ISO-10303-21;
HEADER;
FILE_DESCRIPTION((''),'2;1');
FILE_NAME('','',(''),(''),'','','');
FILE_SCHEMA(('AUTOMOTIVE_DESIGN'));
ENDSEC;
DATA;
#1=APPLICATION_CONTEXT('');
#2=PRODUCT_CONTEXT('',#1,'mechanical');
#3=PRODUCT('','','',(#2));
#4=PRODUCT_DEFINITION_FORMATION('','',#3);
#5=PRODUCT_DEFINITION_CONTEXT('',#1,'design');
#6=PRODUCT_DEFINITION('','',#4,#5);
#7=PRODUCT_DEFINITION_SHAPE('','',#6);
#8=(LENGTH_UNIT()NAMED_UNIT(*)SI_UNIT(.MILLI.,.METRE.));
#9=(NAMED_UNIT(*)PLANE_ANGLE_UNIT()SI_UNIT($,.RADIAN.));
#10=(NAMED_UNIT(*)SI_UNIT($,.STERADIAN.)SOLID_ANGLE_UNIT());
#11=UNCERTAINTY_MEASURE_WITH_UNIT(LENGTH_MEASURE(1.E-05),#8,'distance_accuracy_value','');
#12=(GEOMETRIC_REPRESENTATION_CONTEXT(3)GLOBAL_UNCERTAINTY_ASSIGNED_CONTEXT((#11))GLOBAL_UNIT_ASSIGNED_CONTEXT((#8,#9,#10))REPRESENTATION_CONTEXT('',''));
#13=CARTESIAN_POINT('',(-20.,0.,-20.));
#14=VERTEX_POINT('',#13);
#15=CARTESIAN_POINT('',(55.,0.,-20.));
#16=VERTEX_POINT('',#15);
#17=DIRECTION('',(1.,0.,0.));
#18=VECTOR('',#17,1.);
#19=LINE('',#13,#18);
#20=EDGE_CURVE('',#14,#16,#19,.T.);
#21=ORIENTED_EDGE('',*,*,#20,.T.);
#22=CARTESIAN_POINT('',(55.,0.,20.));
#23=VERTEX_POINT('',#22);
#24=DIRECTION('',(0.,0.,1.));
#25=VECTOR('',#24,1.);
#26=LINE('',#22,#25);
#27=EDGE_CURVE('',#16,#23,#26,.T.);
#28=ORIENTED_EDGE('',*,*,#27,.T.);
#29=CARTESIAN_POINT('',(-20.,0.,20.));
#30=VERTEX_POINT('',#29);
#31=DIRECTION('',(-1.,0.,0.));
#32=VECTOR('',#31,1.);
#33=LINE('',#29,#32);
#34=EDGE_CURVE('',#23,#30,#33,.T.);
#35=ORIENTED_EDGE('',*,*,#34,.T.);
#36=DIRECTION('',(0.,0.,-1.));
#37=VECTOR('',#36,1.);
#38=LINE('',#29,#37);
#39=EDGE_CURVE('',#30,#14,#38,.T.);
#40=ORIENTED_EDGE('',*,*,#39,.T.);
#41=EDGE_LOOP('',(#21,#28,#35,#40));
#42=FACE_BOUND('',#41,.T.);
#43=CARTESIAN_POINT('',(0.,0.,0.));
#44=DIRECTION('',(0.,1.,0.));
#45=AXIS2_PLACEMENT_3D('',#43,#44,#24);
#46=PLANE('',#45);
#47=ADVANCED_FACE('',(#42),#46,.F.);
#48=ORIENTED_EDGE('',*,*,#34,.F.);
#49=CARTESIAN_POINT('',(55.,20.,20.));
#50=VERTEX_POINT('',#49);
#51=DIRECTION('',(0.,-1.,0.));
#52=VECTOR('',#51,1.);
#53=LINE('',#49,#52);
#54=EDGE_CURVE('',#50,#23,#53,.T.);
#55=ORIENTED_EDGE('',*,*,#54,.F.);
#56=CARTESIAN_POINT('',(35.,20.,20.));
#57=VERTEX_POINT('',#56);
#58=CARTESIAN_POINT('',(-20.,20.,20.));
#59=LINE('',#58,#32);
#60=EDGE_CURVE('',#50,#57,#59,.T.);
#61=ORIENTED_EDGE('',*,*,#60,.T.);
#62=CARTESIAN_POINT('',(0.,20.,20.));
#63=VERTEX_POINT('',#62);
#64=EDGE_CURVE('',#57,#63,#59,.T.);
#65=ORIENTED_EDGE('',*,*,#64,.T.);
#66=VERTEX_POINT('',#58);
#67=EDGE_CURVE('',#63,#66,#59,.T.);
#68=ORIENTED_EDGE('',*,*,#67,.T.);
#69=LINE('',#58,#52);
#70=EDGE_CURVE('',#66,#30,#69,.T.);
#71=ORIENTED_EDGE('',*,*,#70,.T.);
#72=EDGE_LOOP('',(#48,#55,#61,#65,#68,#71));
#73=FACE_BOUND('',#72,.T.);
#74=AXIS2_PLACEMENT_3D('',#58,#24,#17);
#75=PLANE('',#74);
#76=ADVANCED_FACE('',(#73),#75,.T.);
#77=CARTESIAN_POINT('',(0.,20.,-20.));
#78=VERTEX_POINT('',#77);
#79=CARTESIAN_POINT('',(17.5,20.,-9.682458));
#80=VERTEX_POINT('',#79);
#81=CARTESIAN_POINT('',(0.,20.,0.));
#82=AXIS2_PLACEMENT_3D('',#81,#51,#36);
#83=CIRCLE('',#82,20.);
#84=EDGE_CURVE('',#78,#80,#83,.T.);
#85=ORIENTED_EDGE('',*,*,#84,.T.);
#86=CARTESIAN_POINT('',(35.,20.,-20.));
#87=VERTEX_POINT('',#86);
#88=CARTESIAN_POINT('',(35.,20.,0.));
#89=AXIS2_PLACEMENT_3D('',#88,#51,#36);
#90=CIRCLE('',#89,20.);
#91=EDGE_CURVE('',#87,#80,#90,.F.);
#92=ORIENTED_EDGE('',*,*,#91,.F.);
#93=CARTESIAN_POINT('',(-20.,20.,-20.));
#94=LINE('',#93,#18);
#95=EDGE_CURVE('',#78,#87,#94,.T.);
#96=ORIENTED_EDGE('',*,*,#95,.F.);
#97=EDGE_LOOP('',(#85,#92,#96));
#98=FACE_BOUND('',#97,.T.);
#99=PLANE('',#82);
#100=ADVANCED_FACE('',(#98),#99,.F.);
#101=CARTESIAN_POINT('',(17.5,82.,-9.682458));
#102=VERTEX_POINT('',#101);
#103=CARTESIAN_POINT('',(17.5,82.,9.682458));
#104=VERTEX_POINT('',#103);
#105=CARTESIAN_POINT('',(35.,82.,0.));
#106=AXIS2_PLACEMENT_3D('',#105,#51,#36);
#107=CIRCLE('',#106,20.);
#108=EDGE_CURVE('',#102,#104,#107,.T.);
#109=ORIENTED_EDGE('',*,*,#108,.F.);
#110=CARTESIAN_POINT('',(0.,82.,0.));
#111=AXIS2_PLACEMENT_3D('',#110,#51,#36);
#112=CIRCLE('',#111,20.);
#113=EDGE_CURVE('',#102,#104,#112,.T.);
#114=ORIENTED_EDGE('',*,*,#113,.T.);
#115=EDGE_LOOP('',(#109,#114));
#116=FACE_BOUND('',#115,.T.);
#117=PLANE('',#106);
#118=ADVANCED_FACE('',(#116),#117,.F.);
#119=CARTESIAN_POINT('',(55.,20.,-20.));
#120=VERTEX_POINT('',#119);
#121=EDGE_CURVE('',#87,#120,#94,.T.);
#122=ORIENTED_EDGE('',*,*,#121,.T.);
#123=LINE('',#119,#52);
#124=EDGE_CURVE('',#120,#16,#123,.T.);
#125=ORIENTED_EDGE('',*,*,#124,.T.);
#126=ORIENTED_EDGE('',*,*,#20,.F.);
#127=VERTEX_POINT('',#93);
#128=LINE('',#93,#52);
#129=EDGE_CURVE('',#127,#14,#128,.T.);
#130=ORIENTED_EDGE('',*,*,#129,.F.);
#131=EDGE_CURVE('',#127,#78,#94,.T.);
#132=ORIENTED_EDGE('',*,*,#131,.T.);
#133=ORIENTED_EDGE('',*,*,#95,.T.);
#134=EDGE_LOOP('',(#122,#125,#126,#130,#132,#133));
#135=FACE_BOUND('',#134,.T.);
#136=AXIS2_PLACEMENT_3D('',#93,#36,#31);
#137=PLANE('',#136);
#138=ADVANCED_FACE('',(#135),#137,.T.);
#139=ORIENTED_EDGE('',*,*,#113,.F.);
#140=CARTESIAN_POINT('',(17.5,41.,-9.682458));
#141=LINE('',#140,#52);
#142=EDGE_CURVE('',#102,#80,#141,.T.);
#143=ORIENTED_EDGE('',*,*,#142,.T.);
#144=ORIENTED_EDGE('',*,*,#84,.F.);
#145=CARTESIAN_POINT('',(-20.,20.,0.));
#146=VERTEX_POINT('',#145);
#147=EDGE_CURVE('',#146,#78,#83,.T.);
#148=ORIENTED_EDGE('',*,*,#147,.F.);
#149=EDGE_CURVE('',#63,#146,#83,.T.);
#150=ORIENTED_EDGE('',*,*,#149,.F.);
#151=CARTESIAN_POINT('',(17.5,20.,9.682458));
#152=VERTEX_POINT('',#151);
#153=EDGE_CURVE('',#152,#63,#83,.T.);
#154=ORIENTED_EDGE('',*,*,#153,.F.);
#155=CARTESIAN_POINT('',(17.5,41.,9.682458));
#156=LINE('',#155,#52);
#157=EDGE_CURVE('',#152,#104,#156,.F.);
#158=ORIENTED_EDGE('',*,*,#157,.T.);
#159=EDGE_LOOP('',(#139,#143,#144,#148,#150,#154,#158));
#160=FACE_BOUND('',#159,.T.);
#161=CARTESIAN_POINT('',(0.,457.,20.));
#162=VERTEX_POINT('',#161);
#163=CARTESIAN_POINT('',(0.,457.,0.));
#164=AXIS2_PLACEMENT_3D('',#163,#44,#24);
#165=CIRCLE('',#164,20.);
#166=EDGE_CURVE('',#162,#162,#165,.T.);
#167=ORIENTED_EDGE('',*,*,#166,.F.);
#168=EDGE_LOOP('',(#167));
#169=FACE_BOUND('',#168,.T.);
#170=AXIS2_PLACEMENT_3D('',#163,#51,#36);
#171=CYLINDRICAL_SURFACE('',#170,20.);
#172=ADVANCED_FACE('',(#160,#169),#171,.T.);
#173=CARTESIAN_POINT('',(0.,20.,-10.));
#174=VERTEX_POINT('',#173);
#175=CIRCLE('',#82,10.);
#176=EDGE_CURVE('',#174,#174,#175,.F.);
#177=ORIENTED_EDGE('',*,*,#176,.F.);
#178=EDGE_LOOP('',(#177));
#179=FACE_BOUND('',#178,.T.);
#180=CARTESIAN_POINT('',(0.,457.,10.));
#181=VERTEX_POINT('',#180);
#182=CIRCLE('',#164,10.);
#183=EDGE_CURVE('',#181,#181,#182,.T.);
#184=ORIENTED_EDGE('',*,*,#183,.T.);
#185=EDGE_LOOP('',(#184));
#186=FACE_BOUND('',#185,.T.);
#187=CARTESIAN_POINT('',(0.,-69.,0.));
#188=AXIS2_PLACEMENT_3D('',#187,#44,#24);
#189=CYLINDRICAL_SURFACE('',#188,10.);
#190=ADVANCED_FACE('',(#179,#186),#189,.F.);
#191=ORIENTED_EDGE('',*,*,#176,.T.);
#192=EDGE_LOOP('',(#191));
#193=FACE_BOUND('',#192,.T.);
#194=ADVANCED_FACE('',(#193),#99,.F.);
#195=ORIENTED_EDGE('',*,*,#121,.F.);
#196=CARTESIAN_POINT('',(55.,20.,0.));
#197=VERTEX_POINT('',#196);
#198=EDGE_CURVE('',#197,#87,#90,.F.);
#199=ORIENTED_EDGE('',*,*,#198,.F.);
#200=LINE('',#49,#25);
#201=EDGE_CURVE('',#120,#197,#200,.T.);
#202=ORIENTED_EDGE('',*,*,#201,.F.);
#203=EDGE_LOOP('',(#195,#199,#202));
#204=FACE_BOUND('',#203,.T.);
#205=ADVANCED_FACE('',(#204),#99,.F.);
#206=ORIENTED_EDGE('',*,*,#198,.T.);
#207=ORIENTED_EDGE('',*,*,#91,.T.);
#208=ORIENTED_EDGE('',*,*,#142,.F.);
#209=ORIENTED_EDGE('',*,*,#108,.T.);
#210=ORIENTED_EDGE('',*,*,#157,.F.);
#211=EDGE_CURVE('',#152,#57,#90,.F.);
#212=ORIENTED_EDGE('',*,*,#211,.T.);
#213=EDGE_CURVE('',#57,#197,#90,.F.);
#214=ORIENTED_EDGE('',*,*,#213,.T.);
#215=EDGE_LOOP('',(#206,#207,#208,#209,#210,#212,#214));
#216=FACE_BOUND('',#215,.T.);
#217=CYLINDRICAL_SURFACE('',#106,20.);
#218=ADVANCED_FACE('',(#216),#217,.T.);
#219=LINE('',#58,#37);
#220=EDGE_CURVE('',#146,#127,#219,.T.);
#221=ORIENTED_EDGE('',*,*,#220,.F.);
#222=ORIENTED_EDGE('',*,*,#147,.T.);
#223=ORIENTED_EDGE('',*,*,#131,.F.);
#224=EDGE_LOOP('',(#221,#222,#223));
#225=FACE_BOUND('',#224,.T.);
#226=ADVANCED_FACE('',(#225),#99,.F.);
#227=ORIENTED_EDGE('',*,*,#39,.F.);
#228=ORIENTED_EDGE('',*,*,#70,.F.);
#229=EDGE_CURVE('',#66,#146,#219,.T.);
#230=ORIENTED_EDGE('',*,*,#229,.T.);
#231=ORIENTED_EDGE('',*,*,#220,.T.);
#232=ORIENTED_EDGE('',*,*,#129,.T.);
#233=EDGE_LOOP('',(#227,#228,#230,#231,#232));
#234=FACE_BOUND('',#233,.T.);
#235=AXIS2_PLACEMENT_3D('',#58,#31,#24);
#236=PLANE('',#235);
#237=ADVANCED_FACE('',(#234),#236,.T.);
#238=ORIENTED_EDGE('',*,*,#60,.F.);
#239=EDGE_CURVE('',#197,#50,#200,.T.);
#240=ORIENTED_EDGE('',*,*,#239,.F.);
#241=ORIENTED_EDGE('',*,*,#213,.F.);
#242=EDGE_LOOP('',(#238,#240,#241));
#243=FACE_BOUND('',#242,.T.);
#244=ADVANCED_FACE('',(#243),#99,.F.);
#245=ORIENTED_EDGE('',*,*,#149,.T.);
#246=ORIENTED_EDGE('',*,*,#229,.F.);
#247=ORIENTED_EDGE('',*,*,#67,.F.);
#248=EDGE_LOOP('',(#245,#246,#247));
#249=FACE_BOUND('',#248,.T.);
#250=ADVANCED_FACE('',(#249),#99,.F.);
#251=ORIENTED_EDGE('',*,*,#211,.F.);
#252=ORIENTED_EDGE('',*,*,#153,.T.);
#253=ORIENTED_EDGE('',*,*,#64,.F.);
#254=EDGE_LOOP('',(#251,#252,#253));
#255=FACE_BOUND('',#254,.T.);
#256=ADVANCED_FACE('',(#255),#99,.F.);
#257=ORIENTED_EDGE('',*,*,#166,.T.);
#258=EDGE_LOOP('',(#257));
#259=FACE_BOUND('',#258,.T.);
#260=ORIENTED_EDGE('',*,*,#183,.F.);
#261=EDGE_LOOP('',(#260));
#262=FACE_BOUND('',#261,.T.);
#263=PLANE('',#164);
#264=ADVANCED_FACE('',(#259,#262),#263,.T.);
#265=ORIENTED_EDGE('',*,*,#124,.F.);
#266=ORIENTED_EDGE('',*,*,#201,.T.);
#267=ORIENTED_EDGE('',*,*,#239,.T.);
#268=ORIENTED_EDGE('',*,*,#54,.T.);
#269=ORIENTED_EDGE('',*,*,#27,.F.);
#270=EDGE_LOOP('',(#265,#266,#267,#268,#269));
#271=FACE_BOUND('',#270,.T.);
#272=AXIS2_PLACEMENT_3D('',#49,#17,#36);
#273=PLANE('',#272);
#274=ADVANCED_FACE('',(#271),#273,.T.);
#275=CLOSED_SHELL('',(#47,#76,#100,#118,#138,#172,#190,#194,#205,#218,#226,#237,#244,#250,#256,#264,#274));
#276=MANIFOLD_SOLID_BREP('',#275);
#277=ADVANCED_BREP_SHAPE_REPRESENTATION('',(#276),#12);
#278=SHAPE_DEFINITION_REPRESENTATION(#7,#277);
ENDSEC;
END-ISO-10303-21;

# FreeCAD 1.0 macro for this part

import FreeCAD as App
import Part
import Sketcher
from FreeCAD import Vector

doc = App.newDocument("Part")
params = doc.addObject("Spreadsheet::Sheet", "Params")
for row, (alias, value) in enumerate([
    ("sketch1_diameter", "40 mm"),
    ("pad1_length", "457 mm"),
    ("sketch2_diameter", "20 mm"),
    ("pocket1_length", "526 mm"),
    ("sketch3_diameter", "40 mm"),
    ("pad2_length", "82 mm"),
    ("sketch4_width", "75 mm"),
    ("sketch4_height", "40 mm"),
    ("pad3_length", "20 mm"),
], start=1):
    params.set(f"A{row}", alias)
    params.set(f"B{row}", "=" + value)
    params.setAlias(f"B{row}", alias)

body = doc.addObject("PartDesign::Body", "Body")

# Sketch on XZ plane
sketch1 = body.newObject("Sketcher::SketchObject", "Sketch")
sketch1.AttachmentSupport = (doc.getObject("XZ_Plane"), [""])
sketch1.MapMode = "FlatFace"
sketch1.addGeometry(Part.Circle(Vector(0, 0, 0), Vector(0, 0, 1), 20), False)
sketch1.addConstraint([
    Sketcher.Constraint("Coincident", 0, 3, -1, 1),
    Sketcher.Constraint("Diameter", 0, 40.0),
])
sketch1.setExpression("Constraints[1]", "Params.sketch1_diameter")
pad1 = body.newObject("PartDesign::Pad", "Pad")
pad1.Profile = sketch1
pad1.setExpression("Length", "Params.pad1_length")
pad1.Reversed = True

# Sketch on XZ plane
sketch2 = body.newObject("Sketcher::SketchObject", "Sketch001")
sketch2.AttachmentSupport = (doc.getObject("XZ_Plane"), [""])
sketch2.MapMode = "FlatFace"
sketch2.AttachmentOffset = App.Placement(Vector(0, 0, -457), App.Rotation())
sketch2.addGeometry(Part.Circle(Vector(0, 0, 0), Vector(0, 0, 1), 10), False)
sketch2.addConstraint([
    Sketcher.Constraint("Coincident", 0, 3, -1, 1),
    Sketcher.Constraint("Diameter", 0, 20.0),
])
sketch2.setExpression("Constraints[1]", "Params.sketch2_diameter")
pocket1 = body.newObject("PartDesign::Pocket", "Pocket")
pocket1.Profile = sketch2
pocket1.setExpression("Length", "Params.pocket1_length")
pocket1.Reversed = True

# Sketch on XZ plane
sketch3 = body.newObject("Sketcher::SketchObject", "Sketch002")
sketch3.AttachmentSupport = (doc.getObject("XZ_Plane"), [""])
sketch3.MapMode = "FlatFace"
sketch3.addGeometry(Part.Circle(Vector(35, 0, 0), Vector(0, 0, 1), 20), False)
sketch3.addConstraint([
    Sketcher.Constraint("PointOnObject", 0, 3, -1),
    Sketcher.Constraint("Diameter", 0, 40.0),
    Sketcher.Constraint("DistanceX", -1, 1, 0, 3, 35.0),
])
sketch3.setExpression("Constraints[1]", "Params.sketch3_diameter")
pad2 = body.newObject("PartDesign::Pad", "Pad001")
pad2.Profile = sketch3
pad2.setExpression("Length", "Params.pad2_length")
pad2.Reversed = True

# Sketch on XZ plane
sketch4 = body.newObject("Sketcher::SketchObject", "Sketch003")
sketch4.AttachmentSupport = (doc.getObject("XZ_Plane"), [""])
sketch4.MapMode = "FlatFace"
sketch4.addGeometry([
    Part.LineSegment(Vector(-20, 20, 0), Vector(-20, -20, 0)),
    Part.LineSegment(Vector(-20, -20, 0), Vector(55, -20, 0)),
    Part.LineSegment(Vector(55, -20, 0), Vector(55, 20, 0)),
    Part.LineSegment(Vector(55, 20, 0), Vector(-20, 20, 0)),
], False)
sketch4.addConstraint([
    Sketcher.Constraint("Coincident", 0, 2, 1, 1),
    Sketcher.Constraint("Coincident", 1, 2, 2, 1),
    Sketcher.Constraint("Coincident", 2, 2, 3, 1),
    Sketcher.Constraint("Coincident", 3, 2, 0, 1),
    Sketcher.Constraint("Vertical", 0),
    Sketcher.Constraint("Horizontal", 1),
    Sketcher.Constraint("Vertical", 2),
    Sketcher.Constraint("Horizontal", 3),
    Sketcher.Constraint("DistanceX", 1, 1, 1, 2, 75.0),
    Sketcher.Constraint("DistanceY", 0, 2, 0, 1, 40.0),
    Sketcher.Constraint("DistanceX", 0, 2, -1, 1, 20.0),
    Sketcher.Constraint("DistanceY", 0, 2, -1, 1, 20.0),
])
sketch4.setExpression("Constraints[8]", "Params.sketch4_width")
sketch4.setExpression("Constraints[9]", "Params.sketch4_height")
pad3 = body.newObject("PartDesign::Pad", "Pad002")
pad3.Profile = sketch4
pad3.setExpression("Length", "Params.pad3_length")
pad3.Reversed = True

doc.recompute()
